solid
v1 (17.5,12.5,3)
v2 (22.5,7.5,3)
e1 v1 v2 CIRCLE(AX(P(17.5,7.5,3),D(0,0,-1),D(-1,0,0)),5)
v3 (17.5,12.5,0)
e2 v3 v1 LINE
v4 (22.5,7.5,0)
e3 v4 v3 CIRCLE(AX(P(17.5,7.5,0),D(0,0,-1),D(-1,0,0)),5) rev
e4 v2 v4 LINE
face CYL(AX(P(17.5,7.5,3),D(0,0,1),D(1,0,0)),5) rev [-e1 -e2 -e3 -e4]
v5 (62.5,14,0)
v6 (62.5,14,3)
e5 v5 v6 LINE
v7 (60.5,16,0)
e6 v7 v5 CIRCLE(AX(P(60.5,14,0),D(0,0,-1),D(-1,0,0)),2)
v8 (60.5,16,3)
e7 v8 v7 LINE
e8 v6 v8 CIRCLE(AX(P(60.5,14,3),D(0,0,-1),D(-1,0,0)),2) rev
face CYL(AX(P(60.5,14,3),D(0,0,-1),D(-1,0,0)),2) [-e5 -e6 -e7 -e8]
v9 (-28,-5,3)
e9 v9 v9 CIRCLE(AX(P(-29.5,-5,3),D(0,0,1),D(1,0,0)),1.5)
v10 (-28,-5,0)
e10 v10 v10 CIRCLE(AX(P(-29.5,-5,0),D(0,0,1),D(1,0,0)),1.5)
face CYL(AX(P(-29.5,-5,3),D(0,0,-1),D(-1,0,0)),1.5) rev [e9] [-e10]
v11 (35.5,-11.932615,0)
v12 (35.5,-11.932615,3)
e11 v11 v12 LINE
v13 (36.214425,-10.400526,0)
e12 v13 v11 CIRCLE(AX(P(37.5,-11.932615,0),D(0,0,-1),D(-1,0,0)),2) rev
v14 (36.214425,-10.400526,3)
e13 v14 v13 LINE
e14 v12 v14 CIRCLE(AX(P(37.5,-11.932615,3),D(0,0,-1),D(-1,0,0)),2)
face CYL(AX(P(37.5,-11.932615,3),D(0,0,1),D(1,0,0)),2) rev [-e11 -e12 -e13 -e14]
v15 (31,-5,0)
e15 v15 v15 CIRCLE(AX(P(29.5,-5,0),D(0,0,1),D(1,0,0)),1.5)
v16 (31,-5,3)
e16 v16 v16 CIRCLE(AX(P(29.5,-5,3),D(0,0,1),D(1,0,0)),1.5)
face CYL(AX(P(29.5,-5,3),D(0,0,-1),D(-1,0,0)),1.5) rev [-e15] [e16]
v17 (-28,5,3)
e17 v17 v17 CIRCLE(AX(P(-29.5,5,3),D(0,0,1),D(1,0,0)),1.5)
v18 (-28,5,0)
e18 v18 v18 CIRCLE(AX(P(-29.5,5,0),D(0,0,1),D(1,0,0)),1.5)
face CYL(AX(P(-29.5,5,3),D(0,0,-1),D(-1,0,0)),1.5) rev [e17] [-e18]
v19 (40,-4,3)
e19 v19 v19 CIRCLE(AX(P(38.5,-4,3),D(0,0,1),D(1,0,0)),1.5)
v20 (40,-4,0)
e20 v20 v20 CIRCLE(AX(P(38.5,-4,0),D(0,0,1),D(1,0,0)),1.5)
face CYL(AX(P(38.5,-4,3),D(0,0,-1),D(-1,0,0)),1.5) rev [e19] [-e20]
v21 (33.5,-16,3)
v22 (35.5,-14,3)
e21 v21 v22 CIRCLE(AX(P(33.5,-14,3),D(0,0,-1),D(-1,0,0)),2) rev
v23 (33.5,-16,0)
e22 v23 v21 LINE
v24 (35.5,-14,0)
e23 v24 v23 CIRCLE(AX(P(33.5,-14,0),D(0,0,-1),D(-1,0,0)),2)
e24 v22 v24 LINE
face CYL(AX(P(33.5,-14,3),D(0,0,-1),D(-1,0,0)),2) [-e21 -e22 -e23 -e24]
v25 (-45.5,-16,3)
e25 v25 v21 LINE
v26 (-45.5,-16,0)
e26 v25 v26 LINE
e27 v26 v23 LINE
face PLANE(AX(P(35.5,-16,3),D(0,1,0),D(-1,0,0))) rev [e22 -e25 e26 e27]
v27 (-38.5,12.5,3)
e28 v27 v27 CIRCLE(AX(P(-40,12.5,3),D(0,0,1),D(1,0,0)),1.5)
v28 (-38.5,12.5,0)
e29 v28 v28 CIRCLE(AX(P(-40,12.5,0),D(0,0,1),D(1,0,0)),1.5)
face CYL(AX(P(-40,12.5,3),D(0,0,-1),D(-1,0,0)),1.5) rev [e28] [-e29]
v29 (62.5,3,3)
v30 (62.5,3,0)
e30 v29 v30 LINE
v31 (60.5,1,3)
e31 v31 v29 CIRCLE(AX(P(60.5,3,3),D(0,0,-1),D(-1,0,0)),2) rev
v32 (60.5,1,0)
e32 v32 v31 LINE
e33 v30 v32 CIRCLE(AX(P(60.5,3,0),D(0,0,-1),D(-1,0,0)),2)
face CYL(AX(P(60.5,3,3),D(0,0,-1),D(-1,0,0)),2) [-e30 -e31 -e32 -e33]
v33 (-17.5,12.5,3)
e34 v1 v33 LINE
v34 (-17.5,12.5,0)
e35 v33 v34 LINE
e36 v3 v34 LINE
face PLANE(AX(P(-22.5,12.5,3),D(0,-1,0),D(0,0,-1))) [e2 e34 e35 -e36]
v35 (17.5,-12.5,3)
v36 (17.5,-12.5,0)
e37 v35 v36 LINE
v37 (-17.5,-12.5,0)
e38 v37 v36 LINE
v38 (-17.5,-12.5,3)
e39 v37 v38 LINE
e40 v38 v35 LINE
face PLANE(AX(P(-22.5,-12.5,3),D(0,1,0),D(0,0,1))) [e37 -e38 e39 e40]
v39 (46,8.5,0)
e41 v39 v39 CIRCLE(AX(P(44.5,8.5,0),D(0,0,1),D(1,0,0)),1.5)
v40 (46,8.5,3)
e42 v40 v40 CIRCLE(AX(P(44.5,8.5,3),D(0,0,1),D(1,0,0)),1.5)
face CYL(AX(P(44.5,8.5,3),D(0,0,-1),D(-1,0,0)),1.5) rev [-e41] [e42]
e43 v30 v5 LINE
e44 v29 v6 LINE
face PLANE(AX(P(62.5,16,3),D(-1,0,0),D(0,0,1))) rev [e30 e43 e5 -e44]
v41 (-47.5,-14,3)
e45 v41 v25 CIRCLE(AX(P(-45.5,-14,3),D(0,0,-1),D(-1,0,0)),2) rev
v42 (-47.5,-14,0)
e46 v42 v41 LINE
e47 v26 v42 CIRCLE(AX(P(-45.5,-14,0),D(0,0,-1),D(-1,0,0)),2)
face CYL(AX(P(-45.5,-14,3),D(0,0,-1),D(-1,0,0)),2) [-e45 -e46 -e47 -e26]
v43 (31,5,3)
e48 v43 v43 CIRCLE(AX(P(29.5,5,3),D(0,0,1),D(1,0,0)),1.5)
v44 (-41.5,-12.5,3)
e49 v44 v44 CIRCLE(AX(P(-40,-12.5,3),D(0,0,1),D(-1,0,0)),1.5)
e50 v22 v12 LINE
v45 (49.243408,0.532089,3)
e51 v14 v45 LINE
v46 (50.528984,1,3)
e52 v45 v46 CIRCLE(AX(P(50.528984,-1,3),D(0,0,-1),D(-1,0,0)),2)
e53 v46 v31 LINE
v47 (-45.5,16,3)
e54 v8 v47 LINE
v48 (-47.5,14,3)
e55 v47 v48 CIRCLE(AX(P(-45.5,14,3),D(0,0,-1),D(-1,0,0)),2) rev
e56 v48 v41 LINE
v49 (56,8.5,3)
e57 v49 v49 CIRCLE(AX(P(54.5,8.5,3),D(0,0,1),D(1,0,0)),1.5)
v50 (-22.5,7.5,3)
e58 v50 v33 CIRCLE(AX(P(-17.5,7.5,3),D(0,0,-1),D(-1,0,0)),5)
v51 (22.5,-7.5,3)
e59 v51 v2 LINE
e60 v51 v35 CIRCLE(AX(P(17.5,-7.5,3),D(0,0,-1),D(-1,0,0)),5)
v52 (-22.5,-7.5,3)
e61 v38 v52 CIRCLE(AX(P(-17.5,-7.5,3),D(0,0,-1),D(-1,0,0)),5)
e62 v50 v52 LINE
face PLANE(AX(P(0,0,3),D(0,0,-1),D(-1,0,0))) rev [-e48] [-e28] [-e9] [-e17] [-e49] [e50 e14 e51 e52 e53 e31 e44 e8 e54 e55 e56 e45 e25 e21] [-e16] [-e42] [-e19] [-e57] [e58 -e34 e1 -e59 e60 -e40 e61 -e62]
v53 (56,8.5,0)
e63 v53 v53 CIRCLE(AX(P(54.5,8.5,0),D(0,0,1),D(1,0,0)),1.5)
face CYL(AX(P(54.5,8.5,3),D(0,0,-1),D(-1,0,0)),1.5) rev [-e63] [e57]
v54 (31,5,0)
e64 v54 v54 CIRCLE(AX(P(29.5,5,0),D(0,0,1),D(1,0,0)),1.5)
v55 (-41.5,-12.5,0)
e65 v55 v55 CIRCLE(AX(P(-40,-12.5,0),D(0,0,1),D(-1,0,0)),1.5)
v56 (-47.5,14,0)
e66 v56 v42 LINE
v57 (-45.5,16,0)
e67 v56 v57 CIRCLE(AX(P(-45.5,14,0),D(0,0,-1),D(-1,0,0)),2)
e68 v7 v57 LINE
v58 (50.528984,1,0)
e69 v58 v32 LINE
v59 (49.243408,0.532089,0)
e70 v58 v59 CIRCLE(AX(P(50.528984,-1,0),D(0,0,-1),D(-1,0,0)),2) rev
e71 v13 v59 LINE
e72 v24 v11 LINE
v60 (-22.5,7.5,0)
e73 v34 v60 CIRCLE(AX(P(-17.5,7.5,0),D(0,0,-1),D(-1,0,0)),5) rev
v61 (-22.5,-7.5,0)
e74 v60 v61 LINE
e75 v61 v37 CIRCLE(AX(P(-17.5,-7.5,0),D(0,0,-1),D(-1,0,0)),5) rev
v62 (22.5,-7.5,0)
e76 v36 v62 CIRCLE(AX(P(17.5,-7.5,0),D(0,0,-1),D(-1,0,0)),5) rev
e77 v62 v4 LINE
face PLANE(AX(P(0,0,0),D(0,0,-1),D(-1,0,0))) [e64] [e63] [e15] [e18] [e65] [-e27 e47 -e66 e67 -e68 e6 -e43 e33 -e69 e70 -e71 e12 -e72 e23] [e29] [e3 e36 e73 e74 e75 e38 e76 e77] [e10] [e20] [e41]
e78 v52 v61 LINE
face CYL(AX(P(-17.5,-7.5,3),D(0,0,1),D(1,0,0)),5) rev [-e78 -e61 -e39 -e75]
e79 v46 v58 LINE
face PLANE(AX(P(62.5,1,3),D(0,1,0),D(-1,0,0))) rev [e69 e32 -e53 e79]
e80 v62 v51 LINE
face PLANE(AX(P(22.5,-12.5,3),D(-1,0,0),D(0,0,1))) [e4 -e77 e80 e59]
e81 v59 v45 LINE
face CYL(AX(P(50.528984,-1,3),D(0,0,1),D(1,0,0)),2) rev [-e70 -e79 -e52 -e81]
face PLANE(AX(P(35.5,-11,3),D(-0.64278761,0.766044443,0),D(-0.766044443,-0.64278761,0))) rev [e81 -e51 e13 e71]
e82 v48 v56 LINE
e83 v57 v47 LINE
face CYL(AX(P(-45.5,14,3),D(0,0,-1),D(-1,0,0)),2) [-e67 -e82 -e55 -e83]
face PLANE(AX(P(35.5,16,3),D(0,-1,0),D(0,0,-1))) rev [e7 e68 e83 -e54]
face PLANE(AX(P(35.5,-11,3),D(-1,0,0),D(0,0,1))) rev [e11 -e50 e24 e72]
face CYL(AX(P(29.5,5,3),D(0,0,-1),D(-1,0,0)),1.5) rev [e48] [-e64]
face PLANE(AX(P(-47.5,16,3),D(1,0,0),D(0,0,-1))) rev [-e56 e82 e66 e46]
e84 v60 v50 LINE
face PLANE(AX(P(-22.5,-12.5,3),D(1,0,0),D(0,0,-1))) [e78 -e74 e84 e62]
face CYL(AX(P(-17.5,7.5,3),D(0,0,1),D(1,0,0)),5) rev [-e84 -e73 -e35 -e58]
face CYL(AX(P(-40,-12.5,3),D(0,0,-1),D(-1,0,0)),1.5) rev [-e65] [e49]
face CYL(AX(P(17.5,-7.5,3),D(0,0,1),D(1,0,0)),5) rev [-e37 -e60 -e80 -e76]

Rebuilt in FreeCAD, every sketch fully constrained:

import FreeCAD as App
import Part
import Sketcher

V = App.Vector
Q = App.Units.Quantity


def edges_at(feature, points):
    """Names of the edges that pass closest to the given points."""
    edges = feature.Shape.Edges
    near = lambda p: min(range(len(edges)), key=lambda i: edges[i].distToShape(Part.Vertex(*p))[0])
    return sorted({f"Edge{near(p) + 1}" for p in points})

doc = App.newDocument("Part")
body = doc.addObject("PartDesign::Body", "Body")

# Sketch on XY plane
sketch1 = doc.addObject("Sketcher::SketchObject", "Sketch")
body.addObject(sketch1)
sketch1.AttachmentSupport = (doc.XY_Plane, [""])
sketch1.MapMode = "FlatFace"
sketch1.addGeometry([
    Part.LineSegment(V(-47.5, 16, 0), V(-47.5, -16, 0)),  # 0
    Part.LineSegment(V(-47.5, -16, 0), V(35.5, -16, 0)),  # 1
    Part.LineSegment(V(35.5, -16, 0), V(35.5, -11, 0)),  # 2
    Part.LineSegment(V(35.5, -11, 0), V(49.8, 1, 0)),  # 3
    Part.LineSegment(V(49.8, 1, 0), V(62.5, 1, 0)),  # 4
    Part.LineSegment(V(62.5, 1, 0), V(62.5, 16, 0)),  # 5
    Part.LineSegment(V(62.5, 16, 0), V(-47.5, 16, 0)),  # 6
    Part.Circle(V(-40, -12.5, 0), V(0, 0, 1), 1.5),  # 7
    Part.Circle(V(-29.5, -5, 0), V(0, 0, 1), 1.5),  # 8
    Part.Circle(V(29.5, -5, 0), V(0, 0, 1), 1.5),  # 9
    Part.Circle(V(38.5, -4, 0), V(0, 0, 1), 1.5),  # 10
    Part.Circle(V(-29.5, 5, 0), V(0, 0, 1), 1.5),  # 11
    Part.LineSegment(V(22.5, -12.5, 0), V(-22.5, -12.5, 0)),  # 12
    Part.LineSegment(V(-22.5, -12.5, 0), V(-22.5, 12.5, 0)),  # 13
    Part.LineSegment(V(-22.5, 12.5, 0), V(22.5, 12.5, 0)),  # 14
    Part.LineSegment(V(22.5, 12.5, 0), V(22.5, -12.5, 0)),  # 15
    Part.Circle(V(-40, 12.5, 0), V(0, 0, 1), 1.5),  # 16
    Part.Circle(V(29.5, 5, 0), V(0, 0, 1), 1.5),  # 17
    Part.Circle(V(44.5, 8.5, 0), V(0, 0, 1), 1.5),  # 18
    Part.Circle(V(54.5, 8.5, 0), V(0, 0, 1), 1.5),  # 19
], False)
sketch1.addConstraint([
    Sketcher.Constraint("Coincident", 0, 2, 1, 1),
    Sketcher.Constraint("Coincident", 1, 2, 2, 1),
    Sketcher.Constraint("Coincident", 2, 2, 3, 1),
    Sketcher.Constraint("Coincident", 3, 2, 4, 1),
    Sketcher.Constraint("Coincident", 4, 2, 5, 1),
    Sketcher.Constraint("Coincident", 5, 2, 6, 1),
    Sketcher.Constraint("Coincident", 6, 2, 0, 1),
    Sketcher.Constraint("Coincident", 12, 2, 13, 1),
    Sketcher.Constraint("Coincident", 13, 2, 14, 1),
    Sketcher.Constraint("Coincident", 14, 2, 15, 1),
    Sketcher.Constraint("Coincident", 15, 2, 12, 1),
    Sketcher.Constraint("Vertical", 0),
    Sketcher.Constraint("Horizontal", 1),
    Sketcher.Constraint("Vertical", 2),
    Sketcher.Constraint("Horizontal", 4),
    Sketcher.Constraint("Vertical", 5),
    Sketcher.Constraint("Horizontal", 6),
    Sketcher.Constraint("Horizontal", 12),
    Sketcher.Constraint("Vertical", 13),
    Sketcher.Constraint("Horizontal", 14),
    Sketcher.Constraint("Vertical", 15),
    Sketcher.Constraint("Equal", 7, 8),
    Sketcher.Constraint("Equal", 8, 9),
    Sketcher.Constraint("Equal", 9, 10),
    Sketcher.Constraint("Equal", 10, 11),
    Sketcher.Constraint("Equal", 11, 16),
    Sketcher.Constraint("Equal", 16, 17),
    Sketcher.Constraint("Equal", 17, 18),
    Sketcher.Constraint("Equal", 18, 19),
    Sketcher.Constraint("Symmetric", 9, 3, 11, 3, -1, 1),
    Sketcher.Constraint("Symmetric", 8, 3, 17, 3, -1, 1),
    Sketcher.Constraint("Symmetric", 12, 2, 14, 2, -1, 1),
    Sketcher.Constraint("Symmetric", 8, 3, 9, 3, -2),
    Sketcher.Constraint("Symmetric", 7, 3, 16, 3, -1),
    Sketcher.Constraint("Horizontal", 18, 3, 19, 3),
    Sketcher.Constraint("Horizontal", 7, 3, 12, 2),
    Sketcher.Constraint("Diameter", 7, 3.0),
    Sketcher.Constraint("DistanceX", 1, 1, 1, 2, 83.0),
    Sketcher.Constraint("DistanceX", 6, 2, 6, 1, 110.0),
    Sketcher.Constraint("DistanceX", 12, 2, 12, 1, 45.0),
    Sketcher.Constraint("DistanceY", 0, 2, 0, 1, 32.0),
    Sketcher.Constraint("DistanceY", 2, 1, 2, 2, 5.0),
    Sketcher.Constraint("DistanceY", 5, 1, 5, 2, 15.0),
    Sketcher.Constraint("DistanceY", 13, 1, 13, 2, 25.0),
    Sketcher.Constraint("Angle", 3, Q("40 deg")),
    Sketcher.Constraint("DistanceX", 7, 3, -1, 1, 40.0),
    Sketcher.Constraint("DistanceY", 8, 3, -1, 1, 5.0),
    Sketcher.Constraint("DistanceY", 10, 3, -1, 1, 4.0),
    Sketcher.Constraint("DistanceY", 0, 2, -1, 1, 16.0),
    Sketcher.Constraint("DistanceX", 8, 3, 9, 3, 59.0),
    Sketcher.Constraint("DistanceX", 9, 3, 10, 3, 9.0),
    Sketcher.Constraint("DistanceX", 10, 3, 18, 3, 6.0),
    Sketcher.Constraint("DistanceX", 18, 3, 19, 3, 10.0),
    Sketcher.Constraint("DistanceX", 0, 2, 8, 3, 18.0),
    Sketcher.Constraint("DistanceY", 18, 3, 14, 2, 4.0),
])
pad1 = doc.addObject("PartDesign::Pad", "Pad")
body.addObject(pad1)
pad1.Profile = sketch1
pad1.Length = 3
doc.recompute()

fillet = doc.addObject("PartDesign::Fillet", "Fillet")
body.addObject(fillet)
fillet.Base = (pad1, edges_at(pad1, [
    (62.5, 16, 1.5),
    (62.5, 1, 1.5),
    (49.801, 1, 1.5),
    (35.5, -11, 1.5),
    (35.5, -16, 1.5),
    (-47.5, -16, 1.5),
    (-47.5, 16, 1.5),
]))
fillet.Radius = 2
doc.recompute()

fillet2 = doc.addObject("PartDesign::Fillet", "Fillet001")
body.addObject(fillet2)
fillet2.Base = (fillet, edges_at(fillet, [
    (22.5, -12.5, 1.5),
    (22.5, 12.5, 1.5),
    (-22.5, 12.5, 1.5),
    (-22.5, -12.5, 1.5),
]))
fillet2.Radius = 5

doc.recompute()
